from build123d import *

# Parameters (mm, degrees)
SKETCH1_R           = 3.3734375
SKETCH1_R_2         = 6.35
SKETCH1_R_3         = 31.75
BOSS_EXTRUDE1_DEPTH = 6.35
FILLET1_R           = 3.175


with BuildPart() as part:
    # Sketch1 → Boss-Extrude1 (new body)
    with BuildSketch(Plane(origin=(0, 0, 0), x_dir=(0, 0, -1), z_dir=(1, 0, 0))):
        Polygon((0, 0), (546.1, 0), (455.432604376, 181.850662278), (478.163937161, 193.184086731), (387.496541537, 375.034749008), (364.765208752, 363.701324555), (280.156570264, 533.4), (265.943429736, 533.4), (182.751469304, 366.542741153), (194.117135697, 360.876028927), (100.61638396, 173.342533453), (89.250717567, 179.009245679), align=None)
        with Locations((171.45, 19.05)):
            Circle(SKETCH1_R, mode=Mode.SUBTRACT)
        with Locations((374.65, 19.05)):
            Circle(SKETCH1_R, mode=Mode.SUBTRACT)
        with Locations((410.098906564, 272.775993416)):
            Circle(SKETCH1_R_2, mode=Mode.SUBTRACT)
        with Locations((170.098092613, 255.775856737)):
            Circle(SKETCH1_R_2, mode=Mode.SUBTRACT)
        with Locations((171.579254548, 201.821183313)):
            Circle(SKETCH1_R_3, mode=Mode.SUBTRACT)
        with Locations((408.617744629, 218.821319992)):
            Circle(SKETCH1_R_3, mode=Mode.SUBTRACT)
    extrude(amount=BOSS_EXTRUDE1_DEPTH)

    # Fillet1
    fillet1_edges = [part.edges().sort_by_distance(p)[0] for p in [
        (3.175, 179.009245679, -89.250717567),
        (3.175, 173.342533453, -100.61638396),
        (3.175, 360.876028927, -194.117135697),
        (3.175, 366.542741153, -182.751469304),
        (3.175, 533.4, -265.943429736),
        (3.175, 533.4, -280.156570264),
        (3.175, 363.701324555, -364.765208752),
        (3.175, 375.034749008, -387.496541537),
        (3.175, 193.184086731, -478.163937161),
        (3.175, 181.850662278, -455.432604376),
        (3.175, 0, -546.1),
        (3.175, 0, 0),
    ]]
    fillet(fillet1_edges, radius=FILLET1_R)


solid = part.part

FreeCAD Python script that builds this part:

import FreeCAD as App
import Part
import Sketcher
Q = App.Units.Quantity


def edges_at(feature, points):
    """Names of the edges that pass closest to the given points."""
    edges = feature.Shape.Edges
    near = lambda p: min(range(len(edges)), key=lambda i: edges[i].distToShape(Part.Vertex(*p))[0])
    return sorted({f"Edge{near(p) + 1}" for p in points})

doc = App.newDocument("Part")
params = doc.addObject("Spreadsheet::Sheet", "Params")
for row, (alias, value) in enumerate([
    ("sketch1_diameter", "2.5 in"),
    ("sketch1_diameter2", "0.5 in"),
    ("sketch1_length", "8 in"),
    ("sketch1_length2", "1 in"),
    ("sketch1_diameter3", "0.265625 in"),
    ("pad1_length", "0.25 in"),
    ("fillet_radius", "0.125 in"),
], start=1):
    params.set(f"A{row}", alias)
    params.set(f"B{row}", "=" + value)
    params.setAlias(f"B{row}", alias)

body = doc.addObject("PartDesign::Body", "Body")

# Sketch on YZ plane
sketch1 = body.newObject("Sketcher::SketchObject", "Sketch")
sketch1.AttachmentSupport = (doc.getObject("YZ_Plane"), [""])
sketch1.MapMode = "FlatFace"
sketch1.addGeometry(Part.LineSegment(App.Vector(0, 0, 0), App.Vector(0, -546.1, 0)), False)
sketch1.addGeometry(Part.LineSegment(App.Vector(0, -546.1, 0), App.Vector(181.9, -455.4, 0)), False)
sketch1.addGeometry(Part.LineSegment(App.Vector(181.9, -455.4, 0), App.Vector(193.2, -478.2, 0)), False)
sketch1.addGeometry(Part.LineSegment(App.Vector(193.2, -478.2, 0), App.Vector(375, -387.5, 0)), False)
sketch1.addGeometry(Part.LineSegment(App.Vector(375, -387.5, 0), App.Vector(363.7, -364.8, 0)), False)
sketch1.addGeometry(Part.LineSegment(App.Vector(363.7, -364.8, 0), App.Vector(533.4, -280.2, 0)), False)
sketch1.addGeometry(Part.LineSegment(App.Vector(533.4, -280.2, 0), App.Vector(533.4, -265.9, 0)), False)
sketch1.addGeometry(Part.LineSegment(App.Vector(533.4, -265.9, 0), App.Vector(366.5, -182.8, 0)), False)
sketch1.addGeometry(Part.LineSegment(App.Vector(366.5, -182.8, 0), App.Vector(360.9, -194.1, 0)), False)
sketch1.addGeometry(Part.LineSegment(App.Vector(360.9, -194.1, 0), App.Vector(173.3, -100.6, 0)), False)
sketch1.addGeometry(Part.LineSegment(App.Vector(173.3, -100.6, 0), App.Vector(179, -89.3, 0)), False)
sketch1.addGeometry(Part.LineSegment(App.Vector(179, -89.3, 0), App.Vector(0, 0, 0)), False)
sketch1.addGeometry(Part.Circle(App.Vector(19.1, -171.4, 0), App.Vector(0, 0, 1), 3.4), False)
sketch1.addGeometry(Part.Circle(App.Vector(19.1, -374.6, 0), App.Vector(0, 0, 1), 3.4), False)
sketch1.addGeometry(Part.Circle(App.Vector(201.8, -171.6, 0), App.Vector(0, 0, 1), 31.8), False)
sketch1.addGeometry(Part.Circle(App.Vector(255.8, -170.1, 0), App.Vector(0, 0, 1), 6.3), False)
sketch1.addGeometry(Part.Circle(App.Vector(218.8, -408.6, 0), App.Vector(0, 0, 1), 31.8), False)
sketch1.addGeometry(Part.Circle(App.Vector(272.8, -410.1, 0), App.Vector(0, 0, 1), 6.3), False)
sketch1.addConstraint(Sketcher.Constraint("Coincident", 0, 2, 1, 1))
sketch1.addConstraint(Sketcher.Constraint("Coincident", 1, 2, 2, 1))
sketch1.addConstraint(Sketcher.Constraint("Coincident", 2, 2, 3, 1))
sketch1.addConstraint(Sketcher.Constraint("Coincident", 3, 2, 4, 1))
sketch1.addConstraint(Sketcher.Constraint("Coincident", 4, 2, 5, 1))
sketch1.addConstraint(Sketcher.Constraint("Coincident", 5, 2, 6, 1))
sketch1.addConstraint(Sketcher.Constraint("Coincident", 6, 2, 7, 1))
sketch1.addConstraint(Sketcher.Constraint("Coincident", 7, 2, 8, 1))
sketch1.addConstraint(Sketcher.Constraint("Coincident", 8, 2, 9, 1))
sketch1.addConstraint(Sketcher.Constraint("Coincident", 9, 2, 10, 1))
sketch1.addConstraint(Sketcher.Constraint("Coincident", 10, 2, 11, 1))
sketch1.addConstraint(Sketcher.Constraint("Coincident", 11, 2, 0, 1))
sketch1.addConstraint(Sketcher.Constraint("Vertical", 0))
sketch1.addConstraint(Sketcher.Constraint("Vertical", 6))
sketch1.addConstraint(Sketcher.Constraint("Coincident", 11, 2, -1, 1))
sketch1.addConstraint(Sketcher.Constraint("Equal", 12, 13))
sketch1.addConstraint(Sketcher.Constraint("Equal", 14, 16))
sketch1.addConstraint(Sketcher.Constraint("Equal", 15, 17))
sketch1.addConstraint(Sketcher.Constraint("Perpendicular", 1, 2))
sketch1.addConstraint(Sketcher.Constraint("Perpendicular", 2, 3))
sketch1.addConstraint(Sketcher.Constraint("Perpendicular", 3, 4))
sketch1.addConstraint(Sketcher.Constraint("Perpendicular", 4, 5))
sketch1.addConstraint(Sketcher.Constraint("Perpendicular", 7, 8))
sketch1.addConstraint(Sketcher.Constraint("Perpendicular", 8, 9))
sketch1.addConstraint(Sketcher.Constraint("Perpendicular", 9, 10))
sketch1.addConstraint(Sketcher.Constraint("Perpendicular", 10, 11))
sketch1.addConstraint(Sketcher.Constraint("Vertical", 12, 3, 13, 3))
sketch1.addConstraint(Sketcher.Constraint("Equal", 1, 3))
sketch1.addConstraint(Sketcher.Constraint("Equal", 2, 4))
sketch1.addConstraint(Sketcher.Constraint("Equal", 8, 10))
sketch1.addConstraint(Sketcher.Constraint("Diameter", 14, Q("2.5 in")))
sketch1.addConstraint(Sketcher.Constraint("Diameter", 15, Q("0.5 in")))
sketch1.addConstraint(Sketcher.Constraint("Distance", 1, Q("8 in")))
sketch1.addConstraint(Sketcher.Constraint("Distance", 2, Q("1 in")))
sketch1.addConstraint(Sketcher.Constraint("Diameter", 12, Q("0.265625 in")))
sketch1.addConstraint(Sketcher.Constraint("DistanceY", 0, 2, 0, 1, Q("21.5 in")))
sketch1.addConstraint(Sketcher.Constraint("DistanceX", -1, 1, 5, 2, Q("21 in")))
sketch1.addConstraint(Sketcher.Constraint("DistanceY", 13, 3, 12, 3, Q("8 in")))
sketch1.addConstraint(Sketcher.Constraint("Distance", 8, Q("0.5 in")))
sketch1.addConstraint(Sketcher.Constraint("Angle", 1, Q("26.5 deg")))
sketch1.addConstraint(Sketcher.Constraint("Angle", 7, Q("153.5 deg")))
sketch1.addConstraint(Sketcher.Constraint("Distance", 9, Q("8.25 in")))
sketch1.addConstraint(Sketcher.Constraint("DistanceX", -1, 1, 12, 3, Q("0.75 in")))
sketch1.addConstraint(Sketcher.Constraint("DistanceY", 12, 3, -1, 1, Q("6.75 in")))
sketch1.addConstraint(Sketcher.Constraint("Distance", 11, Q("7.875 in")))
sketch1.addConstraint(Sketcher.Constraint("DistanceX", -1, 1, 16, 3, Q("218.82132 mm")))
sketch1.addConstraint(Sketcher.Constraint("DistanceY", 14, 3, 15, 3, Q("1.481162 mm")))
sketch1.addConstraint(Sketcher.Constraint("DistanceY", 16, 3, 14, 3, Q("237.03849 mm")))
sketch1.addConstraint(Sketcher.Constraint("DistanceY", 17, 3, 16, 3, Q("1.481162 mm")))
sketch1.addConstraint(Sketcher.Constraint("DistanceX", 14, 3, 17, 3, Q("70.95481 mm")))
sketch1.addConstraint(Sketcher.Constraint("DistanceY", 1, 2, 16, 3, Q("46.81486 mm")))
sketch1.addConstraint(Sketcher.Constraint("DistanceX", 1, 2, 17, 3, Q("90.925331 mm")))
sketch1.addConstraint(Sketcher.Constraint("DistanceX", 10, 2, 15, 3, Q("76.766611 mm")))
sketch1.setExpression("Constraints[30]", "Params.sketch1_diameter")
sketch1.setExpression("Constraints[31]", "Params.sketch1_diameter2")
sketch1.setExpression("Constraints[32]", "Params.sketch1_length")
sketch1.setExpression("Constraints[33]", "Params.sketch1_length2")
sketch1.setExpression("Constraints[34]", "Params.sketch1_diameter3")
pad1 = body.newObject("PartDesign::Pad", "Pad")
pad1.Profile = sketch1
pad1.setExpression("Length", "Params.pad1_length")
doc.recompute()

fillet = body.newObject("PartDesign::Fillet", "Fillet")
fillet.Base = (pad1, edges_at(pad1, [
    (3.175, 179.009, -89.251),
    (3.175, 173.343, -100.616),
    (3.175, 360.876, -194.117),
    (3.175, 366.543, -182.751),
    (3.175, 533.4, -265.943),
    (3.175, 533.4, -280.157),
    (3.175, 363.701, -364.765),
    (3.175, 375.035, -387.497),
    (3.175, 193.184, -478.164),
    (3.175, 181.851, -455.433),
    (3.175, 0, -546.1),
    (3.175, 0, 0),
]))
fillet.setExpression("Radius", "Params.fillet_radius")

doc.recompute()
